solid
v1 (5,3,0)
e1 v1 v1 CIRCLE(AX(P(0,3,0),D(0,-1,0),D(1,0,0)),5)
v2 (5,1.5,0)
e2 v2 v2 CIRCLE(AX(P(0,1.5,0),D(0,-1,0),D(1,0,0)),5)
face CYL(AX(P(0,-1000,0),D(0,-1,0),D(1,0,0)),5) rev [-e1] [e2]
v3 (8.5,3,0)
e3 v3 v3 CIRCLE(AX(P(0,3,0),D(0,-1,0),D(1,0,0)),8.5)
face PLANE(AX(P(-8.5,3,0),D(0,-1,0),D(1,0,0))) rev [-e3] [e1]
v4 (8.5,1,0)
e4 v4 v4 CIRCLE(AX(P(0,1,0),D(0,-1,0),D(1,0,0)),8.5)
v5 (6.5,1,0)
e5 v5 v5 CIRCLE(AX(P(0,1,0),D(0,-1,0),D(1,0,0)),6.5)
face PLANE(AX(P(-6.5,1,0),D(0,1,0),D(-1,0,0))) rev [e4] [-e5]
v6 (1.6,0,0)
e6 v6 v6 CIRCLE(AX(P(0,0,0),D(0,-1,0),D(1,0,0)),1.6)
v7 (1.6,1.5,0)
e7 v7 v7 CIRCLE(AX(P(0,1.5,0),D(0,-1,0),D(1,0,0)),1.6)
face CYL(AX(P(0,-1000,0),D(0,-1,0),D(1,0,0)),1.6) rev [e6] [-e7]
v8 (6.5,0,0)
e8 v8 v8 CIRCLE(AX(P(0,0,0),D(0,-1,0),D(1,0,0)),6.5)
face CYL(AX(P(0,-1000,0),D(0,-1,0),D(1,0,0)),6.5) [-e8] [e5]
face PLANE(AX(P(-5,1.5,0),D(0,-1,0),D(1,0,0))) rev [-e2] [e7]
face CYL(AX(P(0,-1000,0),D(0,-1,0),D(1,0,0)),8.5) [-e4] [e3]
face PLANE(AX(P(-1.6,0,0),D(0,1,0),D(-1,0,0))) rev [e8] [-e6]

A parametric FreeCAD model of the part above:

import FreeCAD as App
import Part
import Sketcher
Q = App.Units.Quantity


def add_polygon(sketch, points):
    """Adds a closed chain of lines whose ends are joined by coincident constraints."""
    first, n = sketch.GeometryCount, len(points)
    for a, b in zip(points, points[1:] + points[:1]):
        sketch.addGeometry(Part.LineSegment(App.Vector(*a, 0), App.Vector(*b, 0)), False)
    for i in range(n):
        sketch.addConstraint(Sketcher.Constraint("Coincident", first + i, 2, first + (i + 1) % n, 1))

doc = App.newDocument("Part")
body = doc.addObject("PartDesign::Body", "Body")

# Sketch on XY plane
sketch1 = body.newObject("Sketcher::SketchObject", "Sketch")
sketch1.AttachmentSupport = (doc.getObject("XY_Plane"), [""])
sketch1.MapMode = "FlatFace"
add_polygon(sketch1, [(-6.5, 0), (-1.6, 0), (-1.6, 1.5), (-5, 1.5), (-5, 3), (-8.5, 3), (-8.5, 1), (-6.5, 1)])  # lines 0-7
sketch1.addConstraint(Sketcher.Constraint("Horizontal", 0))
sketch1.addConstraint(Sketcher.Constraint("Vertical", 1))
sketch1.addConstraint(Sketcher.Constraint("Horizontal", 2))
sketch1.addConstraint(Sketcher.Constraint("Vertical", 3))
sketch1.addConstraint(Sketcher.Constraint("Horizontal", 4))
sketch1.addConstraint(Sketcher.Constraint("Vertical", 5))
sketch1.addConstraint(Sketcher.Constraint("Horizontal", 6))
sketch1.addConstraint(Sketcher.Constraint("Vertical", 7))
sketch1.addConstraint(Sketcher.Constraint("PointOnObject", 0, 2, -1))
sketch1.addConstraint(Sketcher.Constraint("Equal", 1, 3))
sketch1.addConstraint(Sketcher.Constraint("Equal", 6, 5))
sketch1.addConstraint(Sketcher.Constraint("DistanceX", 6, 1, 6, 2, Q("2 mm")))
sketch1.addConstraint(Sketcher.Constraint("DistanceY", 7, 2, 7, 1, Q("1 mm")))
sketch1.addConstraint(Sketcher.Constraint("DistanceX", 0, 1, 0, 2, Q("4.9 mm")))
sketch1.addConstraint(Sketcher.Constraint("DistanceX", 2, 2, 2, 1, Q("3.4 mm")))
sketch1.addConstraint(Sketcher.Constraint("DistanceX", 2, 2, -1, 1, Q("5 mm")))
revolution = body.newObject("PartDesign::Revolution", "Revolution")
revolution.Profile = sketch1
revolution.ReferenceAxis = (sketch1, ["V_Axis"])
revolution.Angle = 360

doc.recompute()
